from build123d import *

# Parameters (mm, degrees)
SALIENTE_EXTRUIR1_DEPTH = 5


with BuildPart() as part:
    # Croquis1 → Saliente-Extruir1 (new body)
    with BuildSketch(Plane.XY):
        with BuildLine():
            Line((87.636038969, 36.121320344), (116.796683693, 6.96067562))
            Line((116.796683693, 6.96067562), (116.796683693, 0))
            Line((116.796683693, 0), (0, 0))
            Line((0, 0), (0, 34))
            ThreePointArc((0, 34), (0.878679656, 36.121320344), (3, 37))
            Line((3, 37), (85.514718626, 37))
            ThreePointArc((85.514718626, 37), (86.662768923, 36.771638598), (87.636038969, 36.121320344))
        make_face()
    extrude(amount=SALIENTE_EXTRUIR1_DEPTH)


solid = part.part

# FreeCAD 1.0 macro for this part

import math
import FreeCAD as App
import Part
import Sketcher
Q = App.Units.Quantity

doc = App.newDocument("Part")
body = doc.addObject("PartDesign::Body", "Body")

sketch1 = body.newObject("Sketcher::SketchObject", "Sketch")
sketch1.AttachmentSupport = (doc.getObject("XY_Plane"), [""])
sketch1.MapMode = "FlatFace"
sketch1.addGeometry([
    Part.LineSegment(App.Vector(116.8, 7, 0), App.Vector(87.6, 36.1, 0)),
    Part.ArcOfCircle(Part.Circle(App.Vector(85.5, 34, 0), App.Vector(0, 0, 1), 3), math.radians(45), math.radians(90)),
    Part.LineSegment(App.Vector(85.5, 37, 0), App.Vector(3, 37, 0)),
    Part.ArcOfCircle(Part.Circle(App.Vector(3, 34, 0), App.Vector(0, 0, 1), 3), math.radians(90), math.radians(180)),
    Part.LineSegment(App.Vector(0, 34, 0), App.Vector(0, 0, 0)),
    Part.LineSegment(App.Vector(0, 0, 0), App.Vector(116.8, 0, 0)),
    Part.LineSegment(App.Vector(116.8, 0, 0), App.Vector(116.8, 7, 0)),
], False)
sketch1.addConstraint([
    Sketcher.Constraint("Tangent", 0, 2, 1, 1),
    Sketcher.Constraint("Tangent", 1, 2, 2, 1),
    Sketcher.Constraint("Tangent", 2, 2, 3, 1),
    Sketcher.Constraint("Tangent", 3, 2, 4, 1),
    Sketcher.Constraint("Coincident", 4, 2, 5, 1),
    Sketcher.Constraint("Coincident", 5, 2, 6, 1),
    Sketcher.Constraint("Coincident", 6, 2, 0, 1),
    Sketcher.Constraint("Horizontal", 2),
    Sketcher.Constraint("Vertical", 4),
    Sketcher.Constraint("Horizontal", 5),
    Sketcher.Constraint("Vertical", 6),
    Sketcher.Constraint("Coincident", 4, 2, -1, 1),
    Sketcher.Constraint("Equal", 1, 3),
    Sketcher.Constraint("Radius", 1, Q("3 mm")),
    Sketcher.Constraint("DistanceY", 4, 2, 4, 1, Q("34 mm")),
    Sketcher.Constraint("Angle", 0, Q("135 deg")),
    Sketcher.Constraint("DistanceX", 2, 2, 2, 1, Q("82.514719 mm")),
    Sketcher.Constraint("Distance", 0, Q("41.239379 mm")),
])
pad1 = body.newObject("PartDesign::Pad", "Pad")
pad1.Profile = sketch1
pad1.Length = 5

doc.recompute()
